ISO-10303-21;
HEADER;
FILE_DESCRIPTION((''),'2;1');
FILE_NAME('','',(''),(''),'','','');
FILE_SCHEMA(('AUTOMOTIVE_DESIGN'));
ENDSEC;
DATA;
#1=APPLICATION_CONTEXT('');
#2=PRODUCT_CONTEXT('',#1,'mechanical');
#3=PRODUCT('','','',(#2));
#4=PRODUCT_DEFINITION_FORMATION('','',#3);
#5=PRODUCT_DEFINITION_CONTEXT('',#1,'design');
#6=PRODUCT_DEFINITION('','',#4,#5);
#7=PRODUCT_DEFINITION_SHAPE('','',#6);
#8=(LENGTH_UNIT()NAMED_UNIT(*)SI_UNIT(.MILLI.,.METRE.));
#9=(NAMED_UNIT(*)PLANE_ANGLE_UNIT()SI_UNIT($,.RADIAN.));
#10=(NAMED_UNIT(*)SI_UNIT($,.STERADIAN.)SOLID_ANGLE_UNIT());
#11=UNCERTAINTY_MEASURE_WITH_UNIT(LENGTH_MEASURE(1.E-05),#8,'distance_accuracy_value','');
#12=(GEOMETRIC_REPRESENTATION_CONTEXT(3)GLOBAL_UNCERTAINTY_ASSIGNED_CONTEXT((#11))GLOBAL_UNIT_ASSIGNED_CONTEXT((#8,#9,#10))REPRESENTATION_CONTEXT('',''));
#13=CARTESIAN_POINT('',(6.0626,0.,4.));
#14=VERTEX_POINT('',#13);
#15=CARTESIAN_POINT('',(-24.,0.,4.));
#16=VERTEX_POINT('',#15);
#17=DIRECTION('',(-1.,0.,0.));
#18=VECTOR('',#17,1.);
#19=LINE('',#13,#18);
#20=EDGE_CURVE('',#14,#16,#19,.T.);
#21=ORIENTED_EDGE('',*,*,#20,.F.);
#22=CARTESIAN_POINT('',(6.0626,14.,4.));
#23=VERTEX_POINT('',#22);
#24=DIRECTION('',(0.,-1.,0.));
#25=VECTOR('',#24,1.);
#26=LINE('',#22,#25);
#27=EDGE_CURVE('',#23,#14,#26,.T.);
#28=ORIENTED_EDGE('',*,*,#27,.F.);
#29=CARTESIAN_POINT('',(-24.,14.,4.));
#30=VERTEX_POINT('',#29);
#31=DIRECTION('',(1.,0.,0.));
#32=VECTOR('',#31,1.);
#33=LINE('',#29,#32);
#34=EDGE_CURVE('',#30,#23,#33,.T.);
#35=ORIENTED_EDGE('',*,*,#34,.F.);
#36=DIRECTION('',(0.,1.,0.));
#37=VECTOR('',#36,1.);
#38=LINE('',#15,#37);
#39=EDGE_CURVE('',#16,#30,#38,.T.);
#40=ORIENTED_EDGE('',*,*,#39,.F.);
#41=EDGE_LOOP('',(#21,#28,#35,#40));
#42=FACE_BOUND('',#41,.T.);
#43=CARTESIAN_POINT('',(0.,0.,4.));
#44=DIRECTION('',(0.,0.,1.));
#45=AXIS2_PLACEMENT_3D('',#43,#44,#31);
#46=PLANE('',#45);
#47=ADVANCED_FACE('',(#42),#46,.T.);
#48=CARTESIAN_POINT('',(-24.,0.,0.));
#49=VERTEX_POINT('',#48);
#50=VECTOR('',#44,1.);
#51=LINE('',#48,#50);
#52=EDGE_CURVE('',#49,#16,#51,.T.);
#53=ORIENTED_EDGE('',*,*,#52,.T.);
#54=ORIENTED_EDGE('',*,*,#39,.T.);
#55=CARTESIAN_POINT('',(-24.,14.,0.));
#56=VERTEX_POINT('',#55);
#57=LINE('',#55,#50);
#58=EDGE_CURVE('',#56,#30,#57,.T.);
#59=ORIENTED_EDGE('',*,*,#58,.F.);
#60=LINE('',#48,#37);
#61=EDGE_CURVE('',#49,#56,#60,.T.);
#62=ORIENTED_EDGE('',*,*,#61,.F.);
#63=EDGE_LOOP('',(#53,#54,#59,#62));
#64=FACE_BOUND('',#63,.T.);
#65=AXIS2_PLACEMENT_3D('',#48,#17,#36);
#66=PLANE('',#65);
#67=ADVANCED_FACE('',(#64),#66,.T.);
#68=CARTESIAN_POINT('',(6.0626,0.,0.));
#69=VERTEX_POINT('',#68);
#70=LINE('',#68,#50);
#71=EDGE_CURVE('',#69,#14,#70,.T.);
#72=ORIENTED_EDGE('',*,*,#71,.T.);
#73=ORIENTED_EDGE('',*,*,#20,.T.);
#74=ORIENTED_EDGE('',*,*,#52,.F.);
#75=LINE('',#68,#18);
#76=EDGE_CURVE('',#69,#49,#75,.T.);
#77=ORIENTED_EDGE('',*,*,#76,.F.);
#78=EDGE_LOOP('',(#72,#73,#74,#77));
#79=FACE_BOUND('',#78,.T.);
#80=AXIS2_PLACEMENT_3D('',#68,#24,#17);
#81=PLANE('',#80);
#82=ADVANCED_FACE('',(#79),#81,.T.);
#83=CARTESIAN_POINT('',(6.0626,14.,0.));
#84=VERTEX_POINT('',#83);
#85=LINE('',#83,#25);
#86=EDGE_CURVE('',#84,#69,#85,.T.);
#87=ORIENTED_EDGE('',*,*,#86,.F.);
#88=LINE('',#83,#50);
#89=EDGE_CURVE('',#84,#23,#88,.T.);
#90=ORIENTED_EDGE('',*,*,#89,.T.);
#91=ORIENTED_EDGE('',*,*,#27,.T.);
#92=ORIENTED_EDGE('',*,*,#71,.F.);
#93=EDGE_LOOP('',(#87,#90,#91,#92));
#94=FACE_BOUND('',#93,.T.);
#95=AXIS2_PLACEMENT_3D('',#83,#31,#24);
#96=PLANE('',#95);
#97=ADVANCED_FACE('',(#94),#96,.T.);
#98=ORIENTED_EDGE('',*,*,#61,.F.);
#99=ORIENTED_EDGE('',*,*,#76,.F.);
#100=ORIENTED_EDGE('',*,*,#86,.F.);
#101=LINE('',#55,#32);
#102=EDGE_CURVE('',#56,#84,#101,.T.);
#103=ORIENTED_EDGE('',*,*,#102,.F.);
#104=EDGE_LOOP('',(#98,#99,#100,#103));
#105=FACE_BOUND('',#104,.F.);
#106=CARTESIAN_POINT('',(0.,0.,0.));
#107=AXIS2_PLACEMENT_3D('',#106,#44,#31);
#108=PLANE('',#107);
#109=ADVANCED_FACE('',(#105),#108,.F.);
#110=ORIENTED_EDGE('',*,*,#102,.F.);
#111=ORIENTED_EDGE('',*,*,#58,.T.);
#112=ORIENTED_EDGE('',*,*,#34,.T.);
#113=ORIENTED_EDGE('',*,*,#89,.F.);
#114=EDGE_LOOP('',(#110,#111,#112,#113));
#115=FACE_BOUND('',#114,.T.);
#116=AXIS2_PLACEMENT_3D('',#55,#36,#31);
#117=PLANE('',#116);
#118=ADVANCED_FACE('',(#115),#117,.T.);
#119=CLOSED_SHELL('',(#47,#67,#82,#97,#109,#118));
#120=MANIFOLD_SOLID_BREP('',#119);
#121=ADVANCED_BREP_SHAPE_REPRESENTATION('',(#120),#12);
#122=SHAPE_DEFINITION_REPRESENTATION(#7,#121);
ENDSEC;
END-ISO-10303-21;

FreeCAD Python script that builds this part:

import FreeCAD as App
import Part
import Sketcher
Q = App.Units.Quantity

doc = App.newDocument("Part")
body = doc.addObject("PartDesign::Body", "Body")

sketch1 = body.newObject("Sketcher::SketchObject", "Sketch")
sketch1.AttachmentSupport = (doc.getObject("XY_Plane"), [""])
sketch1.MapMode = "FlatFace"
sketch1.addGeometry(Part.LineSegment(App.Vector(6, 14, 0), App.Vector(-24, 14, 0)), False)
sketch1.addGeometry(Part.LineSegment(App.Vector(-24, 14, 0), App.Vector(-24, 0, 0)), False)
sketch1.addGeometry(Part.LineSegment(App.Vector(-24, 0, 0), App.Vector(6, 0, 0)), False)
sketch1.addGeometry(Part.LineSegment(App.Vector(6, 0, 0), App.Vector(6, 14, 0)), False)
sketch1.addConstraint(Sketcher.Constraint("Coincident", 0, 2, 1, 1))
sketch1.addConstraint(Sketcher.Constraint("Coincident", 1, 2, 2, 1))
sketch1.addConstraint(Sketcher.Constraint("Coincident", 2, 2, 3, 1))
sketch1.addConstraint(Sketcher.Constraint("Coincident", 3, 2, 0, 1))
sketch1.addConstraint(Sketcher.Constraint("Horizontal", 0))
sketch1.addConstraint(Sketcher.Constraint("Vertical", 1))
sketch1.addConstraint(Sketcher.Constraint("Horizontal", 2))
sketch1.addConstraint(Sketcher.Constraint("Vertical", 3))
sketch1.addConstraint(Sketcher.Constraint("PointOnObject", 1, 2, -1))
sketch1.addConstraint(Sketcher.Constraint("DistanceY", 1, 2, 1, 1, Q("14 mm")))
sketch1.addConstraint(Sketcher.Constraint("DistanceX", 0, 2, -1, 1, Q("24 mm")))
sketch1.addConstraint(Sketcher.Constraint("DistanceX", 0, 2, 0, 1, Q("30.0626 mm")))
pad1 = body.newObject("PartDesign::Pad", "Pad")
pad1.Profile = sketch1
pad1.Length = 4

doc.recompute()
